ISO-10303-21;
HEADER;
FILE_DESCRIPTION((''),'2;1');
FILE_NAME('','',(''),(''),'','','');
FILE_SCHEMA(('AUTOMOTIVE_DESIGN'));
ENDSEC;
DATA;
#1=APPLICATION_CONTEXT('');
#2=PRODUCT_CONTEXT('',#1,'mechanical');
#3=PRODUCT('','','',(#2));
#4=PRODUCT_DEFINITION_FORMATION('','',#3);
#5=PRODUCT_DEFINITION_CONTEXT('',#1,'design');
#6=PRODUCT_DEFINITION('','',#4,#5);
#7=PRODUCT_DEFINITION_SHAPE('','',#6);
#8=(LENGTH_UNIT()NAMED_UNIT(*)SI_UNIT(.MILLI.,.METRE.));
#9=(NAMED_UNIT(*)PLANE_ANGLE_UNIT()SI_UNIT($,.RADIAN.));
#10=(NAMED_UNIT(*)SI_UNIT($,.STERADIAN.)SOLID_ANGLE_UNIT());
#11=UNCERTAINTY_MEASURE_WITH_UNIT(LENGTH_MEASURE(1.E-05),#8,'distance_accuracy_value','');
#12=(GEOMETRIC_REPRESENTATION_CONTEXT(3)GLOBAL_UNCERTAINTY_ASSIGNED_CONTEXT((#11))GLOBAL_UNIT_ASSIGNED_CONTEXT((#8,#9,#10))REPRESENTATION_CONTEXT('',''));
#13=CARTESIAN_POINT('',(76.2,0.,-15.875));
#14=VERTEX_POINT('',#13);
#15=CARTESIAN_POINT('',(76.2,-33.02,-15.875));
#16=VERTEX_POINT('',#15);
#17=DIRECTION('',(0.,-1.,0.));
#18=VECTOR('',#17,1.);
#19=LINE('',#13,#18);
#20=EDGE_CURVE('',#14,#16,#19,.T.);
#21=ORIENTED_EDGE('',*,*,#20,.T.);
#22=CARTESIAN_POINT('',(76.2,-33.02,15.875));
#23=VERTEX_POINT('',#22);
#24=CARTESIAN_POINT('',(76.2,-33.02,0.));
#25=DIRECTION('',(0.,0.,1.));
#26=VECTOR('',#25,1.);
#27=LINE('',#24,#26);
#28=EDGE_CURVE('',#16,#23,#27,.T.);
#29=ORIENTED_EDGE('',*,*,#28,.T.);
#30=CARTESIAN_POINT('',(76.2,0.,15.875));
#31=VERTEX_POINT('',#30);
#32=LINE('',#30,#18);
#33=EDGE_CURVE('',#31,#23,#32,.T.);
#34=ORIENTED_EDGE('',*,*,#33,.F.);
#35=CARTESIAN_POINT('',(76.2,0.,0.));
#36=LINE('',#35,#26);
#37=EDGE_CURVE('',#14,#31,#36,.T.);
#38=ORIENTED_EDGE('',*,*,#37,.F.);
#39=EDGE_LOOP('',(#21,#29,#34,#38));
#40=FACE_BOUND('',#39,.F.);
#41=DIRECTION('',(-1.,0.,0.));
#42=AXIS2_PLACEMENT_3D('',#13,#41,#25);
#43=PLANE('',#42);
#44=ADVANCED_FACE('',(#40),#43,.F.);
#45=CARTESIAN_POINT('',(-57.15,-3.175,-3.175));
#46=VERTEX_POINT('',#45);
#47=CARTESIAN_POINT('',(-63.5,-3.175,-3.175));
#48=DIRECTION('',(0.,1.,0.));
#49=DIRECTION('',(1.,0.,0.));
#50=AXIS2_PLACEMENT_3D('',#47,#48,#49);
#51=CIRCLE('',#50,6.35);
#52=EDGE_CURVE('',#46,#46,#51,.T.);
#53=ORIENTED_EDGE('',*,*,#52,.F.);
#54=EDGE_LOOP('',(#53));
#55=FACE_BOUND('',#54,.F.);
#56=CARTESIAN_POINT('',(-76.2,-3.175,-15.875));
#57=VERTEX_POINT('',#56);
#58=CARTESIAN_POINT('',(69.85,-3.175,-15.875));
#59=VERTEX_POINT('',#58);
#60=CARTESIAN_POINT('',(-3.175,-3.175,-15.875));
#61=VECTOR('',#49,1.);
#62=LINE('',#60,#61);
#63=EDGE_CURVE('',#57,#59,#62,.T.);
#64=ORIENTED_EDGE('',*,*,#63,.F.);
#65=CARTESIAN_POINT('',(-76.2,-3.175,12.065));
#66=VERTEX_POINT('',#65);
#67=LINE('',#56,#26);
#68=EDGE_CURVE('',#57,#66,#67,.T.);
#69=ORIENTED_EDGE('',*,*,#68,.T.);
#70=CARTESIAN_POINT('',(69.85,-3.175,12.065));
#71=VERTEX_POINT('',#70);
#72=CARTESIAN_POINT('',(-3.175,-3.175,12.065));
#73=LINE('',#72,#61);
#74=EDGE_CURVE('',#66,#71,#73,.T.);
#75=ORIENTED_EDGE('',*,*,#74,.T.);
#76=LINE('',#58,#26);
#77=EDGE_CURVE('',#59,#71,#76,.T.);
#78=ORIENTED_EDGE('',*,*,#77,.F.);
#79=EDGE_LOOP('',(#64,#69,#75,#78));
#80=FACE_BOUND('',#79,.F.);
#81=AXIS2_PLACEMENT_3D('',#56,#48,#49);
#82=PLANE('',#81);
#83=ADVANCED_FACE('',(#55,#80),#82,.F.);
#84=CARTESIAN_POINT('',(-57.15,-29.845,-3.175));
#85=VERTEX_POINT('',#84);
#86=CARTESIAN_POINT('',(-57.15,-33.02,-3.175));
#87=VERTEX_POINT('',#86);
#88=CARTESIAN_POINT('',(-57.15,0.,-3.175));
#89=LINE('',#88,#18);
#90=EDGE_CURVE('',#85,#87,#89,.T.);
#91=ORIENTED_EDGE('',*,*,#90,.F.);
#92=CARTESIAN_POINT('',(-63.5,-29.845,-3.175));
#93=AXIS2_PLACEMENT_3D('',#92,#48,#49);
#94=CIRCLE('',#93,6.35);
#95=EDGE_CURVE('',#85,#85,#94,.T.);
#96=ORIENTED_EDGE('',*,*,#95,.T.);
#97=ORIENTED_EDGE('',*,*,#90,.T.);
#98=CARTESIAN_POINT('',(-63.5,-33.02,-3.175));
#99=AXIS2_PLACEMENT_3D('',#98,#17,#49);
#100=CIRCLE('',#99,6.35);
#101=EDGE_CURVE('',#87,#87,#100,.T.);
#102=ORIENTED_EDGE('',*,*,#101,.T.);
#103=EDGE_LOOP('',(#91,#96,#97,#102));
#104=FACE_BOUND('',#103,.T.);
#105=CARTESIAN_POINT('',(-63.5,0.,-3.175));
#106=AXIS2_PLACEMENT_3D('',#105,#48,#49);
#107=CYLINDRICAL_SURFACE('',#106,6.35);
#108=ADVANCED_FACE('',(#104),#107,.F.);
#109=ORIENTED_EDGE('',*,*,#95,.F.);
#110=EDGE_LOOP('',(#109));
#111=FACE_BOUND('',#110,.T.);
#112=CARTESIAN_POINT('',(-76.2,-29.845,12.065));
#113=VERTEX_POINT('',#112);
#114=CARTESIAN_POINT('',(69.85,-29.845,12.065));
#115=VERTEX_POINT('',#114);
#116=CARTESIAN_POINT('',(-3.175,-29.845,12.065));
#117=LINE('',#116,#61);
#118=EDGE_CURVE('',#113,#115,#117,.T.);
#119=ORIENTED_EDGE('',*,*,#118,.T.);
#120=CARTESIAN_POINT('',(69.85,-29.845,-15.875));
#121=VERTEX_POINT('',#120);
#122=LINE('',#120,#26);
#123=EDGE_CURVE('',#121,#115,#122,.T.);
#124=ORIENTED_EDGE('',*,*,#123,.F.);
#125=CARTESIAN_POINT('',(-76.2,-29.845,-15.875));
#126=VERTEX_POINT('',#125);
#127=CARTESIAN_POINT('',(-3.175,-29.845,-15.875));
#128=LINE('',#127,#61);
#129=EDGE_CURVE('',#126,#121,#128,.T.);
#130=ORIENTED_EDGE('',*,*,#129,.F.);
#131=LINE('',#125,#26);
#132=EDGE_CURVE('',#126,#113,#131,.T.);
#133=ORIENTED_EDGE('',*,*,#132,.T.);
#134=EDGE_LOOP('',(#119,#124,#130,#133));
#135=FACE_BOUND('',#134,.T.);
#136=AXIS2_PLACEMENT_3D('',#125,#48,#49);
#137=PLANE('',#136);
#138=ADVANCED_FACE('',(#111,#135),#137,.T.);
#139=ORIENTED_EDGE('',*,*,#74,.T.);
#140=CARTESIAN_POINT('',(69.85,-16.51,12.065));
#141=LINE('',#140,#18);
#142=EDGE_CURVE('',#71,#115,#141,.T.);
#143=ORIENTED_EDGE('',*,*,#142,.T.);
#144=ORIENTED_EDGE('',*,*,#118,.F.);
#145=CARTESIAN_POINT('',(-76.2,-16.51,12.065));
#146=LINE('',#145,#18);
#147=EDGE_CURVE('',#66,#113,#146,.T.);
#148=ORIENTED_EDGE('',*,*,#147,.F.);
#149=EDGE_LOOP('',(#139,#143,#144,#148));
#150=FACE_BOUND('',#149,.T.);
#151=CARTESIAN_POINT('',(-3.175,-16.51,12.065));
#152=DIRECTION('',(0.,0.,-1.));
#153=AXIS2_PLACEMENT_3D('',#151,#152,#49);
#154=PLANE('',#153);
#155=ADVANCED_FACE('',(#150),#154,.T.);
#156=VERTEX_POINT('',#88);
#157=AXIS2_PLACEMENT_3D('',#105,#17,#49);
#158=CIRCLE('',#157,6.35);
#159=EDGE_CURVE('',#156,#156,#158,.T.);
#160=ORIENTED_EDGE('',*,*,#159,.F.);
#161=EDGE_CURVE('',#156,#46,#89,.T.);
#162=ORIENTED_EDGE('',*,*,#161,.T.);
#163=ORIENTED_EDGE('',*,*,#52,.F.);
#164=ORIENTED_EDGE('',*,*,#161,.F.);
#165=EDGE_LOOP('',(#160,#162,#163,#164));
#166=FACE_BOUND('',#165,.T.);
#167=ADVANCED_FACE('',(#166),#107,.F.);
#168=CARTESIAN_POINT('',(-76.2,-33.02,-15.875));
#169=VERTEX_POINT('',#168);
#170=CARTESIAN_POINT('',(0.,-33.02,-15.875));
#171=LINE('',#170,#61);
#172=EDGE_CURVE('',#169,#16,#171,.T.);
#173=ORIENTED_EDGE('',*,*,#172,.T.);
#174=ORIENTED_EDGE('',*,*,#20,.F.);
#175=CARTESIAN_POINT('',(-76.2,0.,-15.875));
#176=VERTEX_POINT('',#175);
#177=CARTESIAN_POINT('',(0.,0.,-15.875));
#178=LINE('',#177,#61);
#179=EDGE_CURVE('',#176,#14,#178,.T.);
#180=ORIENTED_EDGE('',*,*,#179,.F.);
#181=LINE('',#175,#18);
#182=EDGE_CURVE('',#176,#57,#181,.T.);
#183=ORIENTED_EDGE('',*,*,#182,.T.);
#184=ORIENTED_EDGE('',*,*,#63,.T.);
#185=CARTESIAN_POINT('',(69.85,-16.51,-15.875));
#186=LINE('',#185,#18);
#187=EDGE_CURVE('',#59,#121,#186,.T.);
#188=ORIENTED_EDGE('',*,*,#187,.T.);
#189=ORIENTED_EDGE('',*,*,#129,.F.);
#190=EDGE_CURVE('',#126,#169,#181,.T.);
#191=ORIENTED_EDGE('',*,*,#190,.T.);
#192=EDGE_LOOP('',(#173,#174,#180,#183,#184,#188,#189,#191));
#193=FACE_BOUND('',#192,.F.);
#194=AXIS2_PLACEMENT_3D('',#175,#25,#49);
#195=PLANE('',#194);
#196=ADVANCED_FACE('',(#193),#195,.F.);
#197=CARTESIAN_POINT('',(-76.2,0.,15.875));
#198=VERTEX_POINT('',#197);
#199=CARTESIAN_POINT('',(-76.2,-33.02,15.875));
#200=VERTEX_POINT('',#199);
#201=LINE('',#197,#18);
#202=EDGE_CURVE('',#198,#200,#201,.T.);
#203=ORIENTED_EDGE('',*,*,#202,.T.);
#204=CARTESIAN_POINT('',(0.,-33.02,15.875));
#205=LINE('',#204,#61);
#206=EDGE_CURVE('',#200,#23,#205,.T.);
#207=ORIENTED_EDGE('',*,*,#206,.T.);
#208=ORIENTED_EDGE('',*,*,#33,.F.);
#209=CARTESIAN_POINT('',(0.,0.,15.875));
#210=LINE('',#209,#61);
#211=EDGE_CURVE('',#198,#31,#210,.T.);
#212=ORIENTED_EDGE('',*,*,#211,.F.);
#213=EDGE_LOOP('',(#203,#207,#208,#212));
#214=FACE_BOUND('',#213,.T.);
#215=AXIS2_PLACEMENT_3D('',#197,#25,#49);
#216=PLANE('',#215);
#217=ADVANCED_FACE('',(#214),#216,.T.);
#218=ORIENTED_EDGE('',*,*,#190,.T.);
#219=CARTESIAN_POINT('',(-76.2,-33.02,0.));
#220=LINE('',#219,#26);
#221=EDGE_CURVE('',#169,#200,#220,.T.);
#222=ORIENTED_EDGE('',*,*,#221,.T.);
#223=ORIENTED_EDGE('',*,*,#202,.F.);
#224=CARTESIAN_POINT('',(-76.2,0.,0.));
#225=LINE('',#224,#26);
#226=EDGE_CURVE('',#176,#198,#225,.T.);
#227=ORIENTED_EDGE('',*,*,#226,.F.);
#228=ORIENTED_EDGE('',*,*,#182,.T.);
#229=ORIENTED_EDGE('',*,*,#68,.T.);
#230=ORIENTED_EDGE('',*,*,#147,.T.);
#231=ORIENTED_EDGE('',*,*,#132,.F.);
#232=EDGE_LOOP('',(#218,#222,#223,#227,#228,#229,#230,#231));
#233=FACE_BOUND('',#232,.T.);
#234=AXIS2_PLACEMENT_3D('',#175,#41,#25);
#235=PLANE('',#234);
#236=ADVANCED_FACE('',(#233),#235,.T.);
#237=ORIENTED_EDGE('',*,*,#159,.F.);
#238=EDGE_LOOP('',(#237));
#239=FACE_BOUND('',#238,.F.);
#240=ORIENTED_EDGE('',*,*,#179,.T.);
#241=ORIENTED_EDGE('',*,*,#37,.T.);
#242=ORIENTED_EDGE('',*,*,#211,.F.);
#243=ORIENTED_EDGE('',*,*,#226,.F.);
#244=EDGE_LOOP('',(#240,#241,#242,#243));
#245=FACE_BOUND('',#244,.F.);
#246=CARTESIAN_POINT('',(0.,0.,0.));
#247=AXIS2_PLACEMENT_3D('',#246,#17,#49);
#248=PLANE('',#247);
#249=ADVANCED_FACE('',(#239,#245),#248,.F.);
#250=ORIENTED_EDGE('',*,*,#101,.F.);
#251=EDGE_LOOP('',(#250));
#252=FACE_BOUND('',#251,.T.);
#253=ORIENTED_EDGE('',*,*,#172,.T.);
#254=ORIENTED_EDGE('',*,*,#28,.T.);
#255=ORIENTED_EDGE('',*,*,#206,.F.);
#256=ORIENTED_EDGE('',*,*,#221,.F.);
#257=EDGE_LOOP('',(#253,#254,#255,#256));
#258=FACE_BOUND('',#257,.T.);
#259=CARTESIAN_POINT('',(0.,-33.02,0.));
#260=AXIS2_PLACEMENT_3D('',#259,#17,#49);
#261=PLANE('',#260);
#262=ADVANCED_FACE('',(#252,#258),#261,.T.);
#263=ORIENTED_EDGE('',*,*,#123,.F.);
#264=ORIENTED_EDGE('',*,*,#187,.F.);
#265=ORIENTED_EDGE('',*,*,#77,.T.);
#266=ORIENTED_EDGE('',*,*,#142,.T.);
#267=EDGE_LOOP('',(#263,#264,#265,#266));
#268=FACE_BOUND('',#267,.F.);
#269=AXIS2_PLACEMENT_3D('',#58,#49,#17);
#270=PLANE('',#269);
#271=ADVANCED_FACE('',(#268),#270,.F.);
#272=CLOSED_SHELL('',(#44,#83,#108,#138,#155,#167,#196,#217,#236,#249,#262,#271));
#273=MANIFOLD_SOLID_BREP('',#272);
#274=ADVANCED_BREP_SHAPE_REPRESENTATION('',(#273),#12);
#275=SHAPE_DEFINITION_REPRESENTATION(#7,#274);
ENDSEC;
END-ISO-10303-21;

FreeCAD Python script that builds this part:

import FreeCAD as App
import Part
import Sketcher

V = App.Vector
Q = App.Units.Quantity

doc = App.newDocument("Part")
body = doc.addObject("PartDesign::Body", "Body")

# Sketch on XZ plane
sketch1 = doc.addObject("Sketcher::SketchObject", "Sketch")
body.addObject(sketch1)
sketch1.AttachmentSupport = (doc.XZ_Plane, [""])
sketch1.MapMode = "FlatFace"
sketch1.addGeometry([
    Part.LineSegment(V(-76, 16, 0), V(-76, -16, 0)),  # 0
    Part.LineSegment(V(-76, -16, 0), V(76, -16, 0)),  # 1
    Part.LineSegment(V(76, -16, 0), V(76, 16, 0)),  # 2
    Part.LineSegment(V(76, 16, 0), V(-76, 16, 0)),  # 3
    Part.Circle(V(-64, -3, 0), V(0, 0, 1), 6),  # 4
], False)
sketch1.addConstraint([
    Sketcher.Constraint("Coincident", 0, 2, 1, 1),
    Sketcher.Constraint("Coincident", 1, 2, 2, 1),
    Sketcher.Constraint("Coincident", 2, 2, 3, 1),
    Sketcher.Constraint("Coincident", 3, 2, 0, 1),
    Sketcher.Constraint("Vertical", 0),
    Sketcher.Constraint("Horizontal", 1),
    Sketcher.Constraint("Vertical", 2),
    Sketcher.Constraint("Horizontal", 3),
    Sketcher.Constraint("Symmetric", 0, 2, 2, 2, -1, 1),
    Sketcher.Constraint("Diameter", 4, Q("0.5 in")),
    Sketcher.Constraint("DistanceX", 1, 1, 1, 2, Q("6 in")),
    Sketcher.Constraint("DistanceY", 0, 2, 0, 1, Q("1.25 in")),
    Sketcher.Constraint("DistanceX", 4, 3, -1, 1, Q("2.5 in")),
    Sketcher.Constraint("DistanceY", 0, 2, 4, 3, Q("0.5 in")),
])
pad1 = doc.addObject("PartDesign::Pad", "Pad")
body.addObject(pad1)
pad1.Profile = sketch1
pad1.Length = Q("1.3 in")

# Sketch on XY plane
sketch2 = doc.addObject("Sketcher::SketchObject", "Sketch001")
body.addObject(sketch2)
sketch2.AttachmentSupport = (doc.XY_Plane, [""])
sketch2.MapMode = "FlatFace"
sketch2.AttachmentOffset = App.Placement(V(0, 0, -0.625 * 25.4), App.Rotation())
sketch2.addGeometry([
    Part.LineSegment(V(-76, -30, 0), V(-76, -3, 0)),
    Part.LineSegment(V(-76, -3, 0), V(70, -3, 0)),
    Part.LineSegment(V(70, -3, 0), V(70, -30, 0)),
    Part.LineSegment(V(70, -30, 0), V(-76, -30, 0)),
], False)
sketch2.addConstraint([
    Sketcher.Constraint("Coincident", 0, 2, 1, 1),
    Sketcher.Constraint("Coincident", 1, 2, 2, 1),
    Sketcher.Constraint("Coincident", 2, 2, 3, 1),
    Sketcher.Constraint("Coincident", 3, 2, 0, 1),
    Sketcher.Constraint("Vertical", 0),
    Sketcher.Constraint("Horizontal", 1),
    Sketcher.Constraint("Vertical", 2),
    Sketcher.Constraint("Horizontal", 3),
    Sketcher.Constraint("DistanceX", 0, 2, -1, 1, Q("3 in")),
    Sketcher.Constraint("DistanceX", 1, 1, 1, 2, Q("5.75 in")),
    Sketcher.Constraint("DistanceY", 0, 1, 0, 2, Q("1.05 in")),
    Sketcher.Constraint("DistanceY", 0, 2, -1, 1, Q("0.125 in")),
])
pocket1 = doc.addObject("PartDesign::Pocket", "Pocket")
body.addObject(pocket1)
pocket1.Profile = sketch2
pocket1.Length = Q("1.1 in")
pocket1.Reversed = True

doc.recompute()
